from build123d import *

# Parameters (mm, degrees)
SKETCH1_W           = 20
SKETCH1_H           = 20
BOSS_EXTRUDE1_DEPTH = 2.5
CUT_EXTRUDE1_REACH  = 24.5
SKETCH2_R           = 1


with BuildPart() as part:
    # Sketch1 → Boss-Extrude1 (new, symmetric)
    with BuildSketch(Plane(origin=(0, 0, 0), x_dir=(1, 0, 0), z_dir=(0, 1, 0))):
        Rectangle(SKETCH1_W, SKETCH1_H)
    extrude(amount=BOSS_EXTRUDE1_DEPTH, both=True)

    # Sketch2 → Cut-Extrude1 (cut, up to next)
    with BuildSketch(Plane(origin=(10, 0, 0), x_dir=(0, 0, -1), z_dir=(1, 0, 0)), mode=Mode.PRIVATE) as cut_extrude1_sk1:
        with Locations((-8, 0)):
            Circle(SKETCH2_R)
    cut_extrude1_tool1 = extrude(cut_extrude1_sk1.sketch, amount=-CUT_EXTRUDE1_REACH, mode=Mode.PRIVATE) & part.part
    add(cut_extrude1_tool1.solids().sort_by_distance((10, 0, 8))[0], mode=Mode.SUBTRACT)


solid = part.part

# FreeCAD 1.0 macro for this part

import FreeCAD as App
import Part
import Sketcher
from FreeCAD import Vector
Q = App.Units.Quantity


def add_polygon(sketch, points):
    """Adds a closed chain of lines whose ends are joined by coincident constraints."""
    first, n = sketch.GeometryCount, len(points)
    for a, b in zip(points, points[1:] + points[:1]):
        sketch.addGeometry(Part.LineSegment(App.Vector(*a, 0), App.Vector(*b, 0)), False)
    for i in range(n):
        sketch.addConstraint(Sketcher.Constraint("Coincident", first + i, 2, first + (i + 1) % n, 1))

doc = App.newDocument("Part")
body = doc.addObject("PartDesign::Body", "Body")

# Sketch on XZ plane
sketch1 = body.newObject("Sketcher::SketchObject", "Sketch")
sketch1.AttachmentSupport = (doc.getObject("XZ_Plane"), [""])
sketch1.MapMode = "FlatFace"
add_polygon(sketch1, [(-10, -10), (-10, 10), (10, 10), (10, -10)])  # lines 0-3
sketch1.addConstraint([
    Sketcher.Constraint("Vertical", 0),
    Sketcher.Constraint("Horizontal", 1),
    Sketcher.Constraint("Vertical", 2),
    Sketcher.Constraint("Horizontal", 3),
    Sketcher.Constraint("Symmetric", 0, 2, 2, 2, -1, 1),
    Sketcher.Constraint("Equal", 3, 0),
    Sketcher.Constraint("DistanceX", 1, 1, 1, 2, Q("20 mm")),
])
pad1 = body.newObject("PartDesign::Pad", "Pad")
pad1.Profile = sketch1
pad1.Length = 5
pad1.Midplane = True

# Sketch on YZ plane
sketch2 = body.newObject("Sketcher::SketchObject", "Sketch001")
sketch2.AttachmentSupport = (doc.getObject("YZ_Plane"), [""])
sketch2.MapMode = "FlatFace"
sketch2.AttachmentOffset = App.Placement(Vector(0, 0, 10), App.Rotation())
sketch2.addGeometry(Part.Circle(Vector(0, 8, 0), Vector(0, 0, 1), 1), False)
sketch2.addConstraint([
    Sketcher.Constraint("PointOnObject", 0, 3, -2),
    Sketcher.Constraint("Diameter", 0, Q("2 mm")),
    Sketcher.Constraint("DistanceY", -1, 1, 0, 3, Q("8 mm")),
])
pocket1 = body.newObject("PartDesign::Pocket", "Pocket")
pocket1.Profile = sketch2
pocket1.Type = "UpToFirst"

doc.recompute()
